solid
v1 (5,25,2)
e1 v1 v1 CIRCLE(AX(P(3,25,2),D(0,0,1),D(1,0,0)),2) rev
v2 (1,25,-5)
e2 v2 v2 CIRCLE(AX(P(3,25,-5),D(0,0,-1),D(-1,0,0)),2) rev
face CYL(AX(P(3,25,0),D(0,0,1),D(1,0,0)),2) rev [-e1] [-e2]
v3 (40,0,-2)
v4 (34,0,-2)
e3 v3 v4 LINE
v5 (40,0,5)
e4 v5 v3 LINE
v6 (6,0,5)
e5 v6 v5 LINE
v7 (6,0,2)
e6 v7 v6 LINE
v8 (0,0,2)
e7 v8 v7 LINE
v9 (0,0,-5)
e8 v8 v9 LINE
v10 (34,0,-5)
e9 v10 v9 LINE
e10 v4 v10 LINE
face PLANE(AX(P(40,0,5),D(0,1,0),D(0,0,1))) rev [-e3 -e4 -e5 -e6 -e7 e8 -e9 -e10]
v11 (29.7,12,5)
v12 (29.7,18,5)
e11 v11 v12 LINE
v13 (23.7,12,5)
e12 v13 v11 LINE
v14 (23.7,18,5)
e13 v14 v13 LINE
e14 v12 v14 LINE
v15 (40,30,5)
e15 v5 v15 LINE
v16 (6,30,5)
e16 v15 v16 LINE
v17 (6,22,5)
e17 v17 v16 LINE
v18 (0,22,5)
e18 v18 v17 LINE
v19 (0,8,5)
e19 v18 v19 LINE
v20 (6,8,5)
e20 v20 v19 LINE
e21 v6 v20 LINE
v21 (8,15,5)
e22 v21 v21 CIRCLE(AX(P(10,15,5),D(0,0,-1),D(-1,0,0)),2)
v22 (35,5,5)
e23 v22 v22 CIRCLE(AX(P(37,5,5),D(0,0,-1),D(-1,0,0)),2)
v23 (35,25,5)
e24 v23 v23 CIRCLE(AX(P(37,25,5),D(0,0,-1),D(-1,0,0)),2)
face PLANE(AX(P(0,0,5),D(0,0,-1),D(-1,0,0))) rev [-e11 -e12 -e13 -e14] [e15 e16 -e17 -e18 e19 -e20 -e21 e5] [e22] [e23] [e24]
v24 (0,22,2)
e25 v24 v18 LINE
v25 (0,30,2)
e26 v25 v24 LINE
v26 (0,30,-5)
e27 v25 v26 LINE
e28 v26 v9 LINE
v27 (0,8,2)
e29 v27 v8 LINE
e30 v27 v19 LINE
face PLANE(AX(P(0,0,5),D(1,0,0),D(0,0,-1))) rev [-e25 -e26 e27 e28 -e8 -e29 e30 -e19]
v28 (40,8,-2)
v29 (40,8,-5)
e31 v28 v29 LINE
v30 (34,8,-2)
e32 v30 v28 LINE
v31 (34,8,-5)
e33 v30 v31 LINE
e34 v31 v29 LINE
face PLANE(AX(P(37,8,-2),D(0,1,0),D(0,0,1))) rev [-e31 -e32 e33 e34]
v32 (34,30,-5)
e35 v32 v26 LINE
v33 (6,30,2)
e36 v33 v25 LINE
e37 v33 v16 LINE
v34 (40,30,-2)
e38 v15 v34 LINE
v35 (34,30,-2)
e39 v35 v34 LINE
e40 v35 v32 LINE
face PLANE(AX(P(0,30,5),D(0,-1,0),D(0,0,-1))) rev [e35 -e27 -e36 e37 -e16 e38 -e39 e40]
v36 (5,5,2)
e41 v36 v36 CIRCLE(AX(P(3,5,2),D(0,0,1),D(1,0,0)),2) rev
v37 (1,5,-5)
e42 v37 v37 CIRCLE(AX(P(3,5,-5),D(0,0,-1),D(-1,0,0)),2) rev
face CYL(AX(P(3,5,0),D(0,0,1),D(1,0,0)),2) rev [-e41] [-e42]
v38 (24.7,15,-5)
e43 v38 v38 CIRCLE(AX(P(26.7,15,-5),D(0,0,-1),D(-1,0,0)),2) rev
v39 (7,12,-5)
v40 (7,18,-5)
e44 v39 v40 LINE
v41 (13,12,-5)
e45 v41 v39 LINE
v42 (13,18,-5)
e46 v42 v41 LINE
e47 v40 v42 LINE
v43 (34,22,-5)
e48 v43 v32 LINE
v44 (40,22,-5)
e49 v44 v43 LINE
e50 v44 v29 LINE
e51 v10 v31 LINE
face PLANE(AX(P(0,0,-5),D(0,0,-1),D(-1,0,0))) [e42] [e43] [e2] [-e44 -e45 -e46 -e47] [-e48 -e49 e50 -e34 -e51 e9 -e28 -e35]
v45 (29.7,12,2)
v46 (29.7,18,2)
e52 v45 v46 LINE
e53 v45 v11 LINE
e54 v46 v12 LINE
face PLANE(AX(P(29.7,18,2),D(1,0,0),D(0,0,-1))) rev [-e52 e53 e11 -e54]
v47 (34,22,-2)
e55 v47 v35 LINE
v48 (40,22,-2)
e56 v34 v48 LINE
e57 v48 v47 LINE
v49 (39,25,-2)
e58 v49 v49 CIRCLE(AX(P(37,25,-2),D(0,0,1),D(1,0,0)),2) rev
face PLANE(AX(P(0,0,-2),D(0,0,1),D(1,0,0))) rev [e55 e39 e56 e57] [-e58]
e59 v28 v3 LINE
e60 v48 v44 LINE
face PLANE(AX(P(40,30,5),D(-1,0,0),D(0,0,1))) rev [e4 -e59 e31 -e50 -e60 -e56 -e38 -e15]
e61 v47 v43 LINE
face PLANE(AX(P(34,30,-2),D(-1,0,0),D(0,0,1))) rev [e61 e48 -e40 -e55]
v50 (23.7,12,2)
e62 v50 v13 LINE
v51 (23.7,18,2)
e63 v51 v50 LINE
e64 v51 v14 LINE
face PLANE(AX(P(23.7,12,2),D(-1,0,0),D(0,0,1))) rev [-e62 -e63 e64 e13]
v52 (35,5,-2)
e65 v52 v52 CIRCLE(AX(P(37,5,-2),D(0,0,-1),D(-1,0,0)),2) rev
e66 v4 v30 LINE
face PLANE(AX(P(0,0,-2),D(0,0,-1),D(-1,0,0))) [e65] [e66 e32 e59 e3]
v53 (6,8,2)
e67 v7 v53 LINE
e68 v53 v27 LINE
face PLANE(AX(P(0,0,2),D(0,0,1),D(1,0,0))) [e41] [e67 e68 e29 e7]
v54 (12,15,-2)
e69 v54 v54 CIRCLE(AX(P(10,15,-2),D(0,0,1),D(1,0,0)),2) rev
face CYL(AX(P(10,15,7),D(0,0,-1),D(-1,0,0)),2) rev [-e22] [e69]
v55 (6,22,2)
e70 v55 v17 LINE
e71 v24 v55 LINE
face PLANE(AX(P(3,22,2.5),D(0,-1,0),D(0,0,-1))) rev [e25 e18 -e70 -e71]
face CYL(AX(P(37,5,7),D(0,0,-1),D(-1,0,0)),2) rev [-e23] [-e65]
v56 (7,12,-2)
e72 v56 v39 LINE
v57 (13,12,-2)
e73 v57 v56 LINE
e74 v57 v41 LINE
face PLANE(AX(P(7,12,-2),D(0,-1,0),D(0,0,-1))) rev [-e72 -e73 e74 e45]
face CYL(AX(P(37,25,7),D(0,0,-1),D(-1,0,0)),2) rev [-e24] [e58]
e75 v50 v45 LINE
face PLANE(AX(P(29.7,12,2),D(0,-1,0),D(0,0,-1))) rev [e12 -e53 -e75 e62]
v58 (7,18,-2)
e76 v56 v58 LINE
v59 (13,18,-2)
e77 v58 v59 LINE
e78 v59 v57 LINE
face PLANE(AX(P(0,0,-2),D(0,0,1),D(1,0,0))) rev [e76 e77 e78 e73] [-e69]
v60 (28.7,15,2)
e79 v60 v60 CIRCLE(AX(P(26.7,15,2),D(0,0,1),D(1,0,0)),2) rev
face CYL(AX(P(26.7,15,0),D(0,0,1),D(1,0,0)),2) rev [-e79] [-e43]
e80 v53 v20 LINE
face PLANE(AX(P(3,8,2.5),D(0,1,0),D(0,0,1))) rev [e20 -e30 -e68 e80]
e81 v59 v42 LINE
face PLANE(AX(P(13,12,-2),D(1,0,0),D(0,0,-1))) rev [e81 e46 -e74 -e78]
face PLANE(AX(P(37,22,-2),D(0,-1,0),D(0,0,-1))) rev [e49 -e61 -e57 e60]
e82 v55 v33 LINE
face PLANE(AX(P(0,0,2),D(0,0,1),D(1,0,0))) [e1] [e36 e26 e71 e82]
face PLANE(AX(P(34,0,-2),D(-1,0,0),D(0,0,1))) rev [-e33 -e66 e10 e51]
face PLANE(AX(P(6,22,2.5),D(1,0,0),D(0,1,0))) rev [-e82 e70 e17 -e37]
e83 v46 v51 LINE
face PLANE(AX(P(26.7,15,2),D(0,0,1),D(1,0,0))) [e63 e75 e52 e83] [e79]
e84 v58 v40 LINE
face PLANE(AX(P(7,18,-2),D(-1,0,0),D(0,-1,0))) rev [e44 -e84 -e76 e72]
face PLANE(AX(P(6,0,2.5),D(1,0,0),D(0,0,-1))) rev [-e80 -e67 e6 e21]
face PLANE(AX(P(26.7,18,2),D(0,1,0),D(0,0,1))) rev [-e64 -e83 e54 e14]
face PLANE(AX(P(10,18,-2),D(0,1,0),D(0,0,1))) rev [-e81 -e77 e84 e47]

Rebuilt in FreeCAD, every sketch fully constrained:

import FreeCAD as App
import Part
import Sketcher

V = App.Vector
Q = App.Units.Quantity


def add_polygon(sketch, points):
    """Adds a closed chain of lines whose ends are joined by coincident constraints."""
    first, n = sketch.GeometryCount, len(points)
    for a, b in zip(points, points[1:] + points[:1]):
        sketch.addGeometry(Part.LineSegment(App.Vector(*a, 0), App.Vector(*b, 0)), False)
    for i in range(n):
        sketch.addConstraint(Sketcher.Constraint("Coincident", first + i, 2, first + (i + 1) % n, 1))

doc = App.newDocument("Part")
body = doc.addObject("PartDesign::Body", "Body")

sketch1 = doc.addObject("Sketcher::SketchObject", "Sketch")
body.addObject(sketch1)
sketch1.AttachmentSupport = (doc.XY_Plane, [""])
sketch1.MapMode = "FlatFace"
add_polygon(sketch1, [(0, 30), (0, 0), (40, 0), (40, 30)])
sketch1.addConstraint(Sketcher.Constraint("Vertical", 0))
sketch1.addConstraint(Sketcher.Constraint("Horizontal", 1))
sketch1.addConstraint(Sketcher.Constraint("Vertical", 2))
sketch1.addConstraint(Sketcher.Constraint("Horizontal", 3))
sketch1.addConstraint(Sketcher.Constraint("Coincident", 0, 2, -1, 1))
sketch1.addConstraint(Sketcher.Constraint("DistanceX", 1, 1, 1, 2, Q("40 mm")))
sketch1.addConstraint(Sketcher.Constraint("DistanceY", 0, 2, 0, 1, Q("30 mm")))
pad1 = doc.addObject("PartDesign::Pad", "Pad")
body.addObject(pad1)
pad1.Profile = sketch1
pad1.Length = 5

sketch2 = doc.addObject("Sketcher::SketchObject", "Sketch001")
body.addObject(sketch2)
sketch2.AttachmentSupport = (doc.XY_Plane, [""])
sketch2.MapMode = "FlatFace"
sketch2.AttachmentOffset = App.Placement(V(0, 0, 5), App.Rotation())
sketch2.addGeometry(Part.Circle(V(3, 25, 0), V(0, 0, 1), 2), False)
sketch2.addGeometry(Part.Circle(V(3, 5, 0), V(0, 0, 1), 2), False)
sketch2.addGeometry(Part.Circle(V(26.7, 15, 0), V(0, 0, 1), 2), False)
sketch2.addConstraint(Sketcher.Constraint("Equal", 0, 1))
sketch2.addConstraint(Sketcher.Constraint("Equal", 1, 2))
sketch2.addConstraint(Sketcher.Constraint("Vertical", 0, 3, 1, 3))
sketch2.addConstraint(Sketcher.Constraint("Diameter", 0, Q("4 mm")))
sketch2.addConstraint(Sketcher.Constraint("DistanceX", -1, 1, 0, 3, Q("3 mm")))
sketch2.addConstraint(Sketcher.Constraint("DistanceY", -1, 1, 0, 3, Q("25 mm")))
sketch2.addConstraint(Sketcher.Constraint("DistanceY", -1, 1, 1, 3, Q("5 mm")))
sketch2.addConstraint(Sketcher.Constraint("DistanceY", -1, 1, 2, 3, Q("15 mm")))
sketch2.addConstraint(Sketcher.Constraint("DistanceX", -1, 1, 2, 3, Q("26.7 mm")))
pocket1 = doc.addObject("PartDesign::Pocket", "Pocket")
body.addObject(pocket1)
pocket1.Profile = sketch2
pocket1.Length = 5

sketch3 = doc.addObject("Sketcher::SketchObject", "Sketch002")
body.addObject(sketch3)
sketch3.AttachmentSupport = (doc.XY_Plane, [""])
sketch3.MapMode = "FlatFace"
sketch3.AttachmentOffset = App.Placement(V(0, 0, 5), App.Rotation())
sketch3.addGeometry(Part.Circle(V(26.7, 15, 0), V(0, 0, 1), 3), False)
add_polygon(sketch3, [(6, 22), (6, 30), (0, 30), (0, 22)])
add_polygon(sketch3, [(0, 8), (0, 0), (6, 0), (6, 8)])
sketch3.addConstraint(Sketcher.Constraint("Vertical", 1))
sketch3.addConstraint(Sketcher.Constraint("Horizontal", 2))
sketch3.addConstraint(Sketcher.Constraint("Vertical", 3))
sketch3.addConstraint(Sketcher.Constraint("Horizontal", 4))
sketch3.addConstraint(Sketcher.Constraint("Vertical", 5))
sketch3.addConstraint(Sketcher.Constraint("Horizontal", 6))
sketch3.addConstraint(Sketcher.Constraint("Vertical", 7))
sketch3.addConstraint(Sketcher.Constraint("Horizontal", 8))
sketch3.addConstraint(Sketcher.Constraint("Coincident", 5, 2, -1, 1))
sketch3.addConstraint(Sketcher.Constraint("PointOnObject", 2, 2, -2))
sketch3.addConstraint(Sketcher.Constraint("Vertical", 4, 2, 6, 2))
sketch3.addConstraint(Sketcher.Constraint("Equal", 3, 5))
sketch3.addConstraint(Sketcher.Constraint("Diameter", 0, Q("6 mm")))
sketch3.addConstraint(Sketcher.Constraint("DistanceX", 2, 2, 2, 1, Q("6 mm")))
sketch3.addConstraint(Sketcher.Constraint("DistanceY", 1, 1, 1, 2, Q("8 mm")))
sketch3.addConstraint(Sketcher.Constraint("DistanceY", -1, 1, 0, 3, Q("15 mm")))
sketch3.addConstraint(Sketcher.Constraint("DistanceY", -1, 1, 1, 2, Q("30 mm")))
sketch3.addConstraint(Sketcher.Constraint("DistanceX", -1, 1, 0, 3, Q("26.7 mm")))
pocket2 = doc.addObject("PartDesign::Pocket", "Pocket001")
body.addObject(pocket2)
pocket2.Profile = sketch3
pocket2.Length = 2.5

sketch4 = doc.addObject("Sketcher::SketchObject", "Sketch003")
body.addObject(sketch4)
sketch4.AttachmentSupport = (doc.XY_Plane, [""])
sketch4.MapMode = "FlatFace"
add_polygon(sketch4, [(40, 30), (40, 0), (0, 0), (0, 30)])
sketch4.addGeometry(Part.Circle(V(3, 5, 0), V(0, 0, 1), 2), False)
sketch4.addGeometry(Part.Circle(V(26.7, 15, 0), V(0, 0, 1), 2), False)
sketch4.addGeometry(Part.Circle(V(3, 25, 0), V(0, 0, 1), 2), False)
sketch4.addConstraint(Sketcher.Constraint("Vertical", 0))
sketch4.addConstraint(Sketcher.Constraint("Horizontal", 1))
sketch4.addConstraint(Sketcher.Constraint("Vertical", 2))
sketch4.addConstraint(Sketcher.Constraint("Horizontal", 3))
sketch4.addConstraint(Sketcher.Constraint("Coincident", 1, 2, -1, 1))
sketch4.addConstraint(Sketcher.Constraint("Equal", 4, 5))
sketch4.addConstraint(Sketcher.Constraint("Equal", 5, 6))
sketch4.addConstraint(Sketcher.Constraint("Vertical", 4, 3, 6, 3))
sketch4.addConstraint(Sketcher.Constraint("Diameter", 4, Q("4 mm")))
sketch4.addConstraint(Sketcher.Constraint("DistanceX", 1, 2, 1, 1, Q("40 mm")))
sketch4.addConstraint(Sketcher.Constraint("DistanceY", 0, 2, 0, 1, Q("30 mm")))
sketch4.addConstraint(Sketcher.Constraint("DistanceX", -1, 1, 4, 3, Q("3 mm")))
sketch4.addConstraint(Sketcher.Constraint("DistanceY", -1, 1, 4, 3, Q("5 mm")))
sketch4.addConstraint(Sketcher.Constraint("DistanceY", -1, 1, 5, 3, Q("15 mm")))
sketch4.addConstraint(Sketcher.Constraint("DistanceY", -1, 1, 6, 3, Q("25 mm")))
sketch4.addConstraint(Sketcher.Constraint("DistanceX", -1, 1, 5, 3, Q("26.7 mm")))
pad2 = doc.addObject("PartDesign::Pad", "Pad001")
body.addObject(pad2)
pad2.Profile = sketch4
pad2.Length = 3
pad2.Reversed = True

sketch5 = doc.addObject("Sketcher::SketchObject", "Sketch004")
body.addObject(sketch5)
sketch5.AttachmentSupport = (doc.XY_Plane, [""])
sketch5.MapMode = "FlatFace"
sketch5.AttachmentOffset = App.Placement(V(0, 0, 5), App.Rotation())
sketch5.addGeometry(Part.Circle(V(26.7, 15, 0), V(0, 0, 1), 3), False)
add_polygon(sketch5, [(6, 22), (6, 30), (0, 30), (0, 22)])
add_polygon(sketch5, [(0, 8), (0, 0), (6, 0), (6, 8)])
sketch5.addConstraint(Sketcher.Constraint("Vertical", 1))
sketch5.addConstraint(Sketcher.Constraint("Horizontal", 2))
sketch5.addConstraint(Sketcher.Constraint("Vertical", 3))
sketch5.addConstraint(Sketcher.Constraint("Horizontal", 4))
sketch5.addConstraint(Sketcher.Constraint("Vertical", 5))
sketch5.addConstraint(Sketcher.Constraint("Horizontal", 6))
sketch5.addConstraint(Sketcher.Constraint("Vertical", 7))
sketch5.addConstraint(Sketcher.Constraint("Horizontal", 8))
sketch5.addConstraint(Sketcher.Constraint("Coincident", 5, 2, -1, 1))
sketch5.addConstraint(Sketcher.Constraint("PointOnObject", 2, 2, -2))
sketch5.addConstraint(Sketcher.Constraint("Vertical", 4, 2, 6, 2))
sketch5.addConstraint(Sketcher.Constraint("Equal", 3, 5))
sketch5.addConstraint(Sketcher.Constraint("Diameter", 0, Q("6 mm")))
sketch5.addConstraint(Sketcher.Constraint("DistanceX", 2, 2, 2, 1, Q("6 mm")))
sketch5.addConstraint(Sketcher.Constraint("DistanceY", 1, 1, 1, 2, Q("8 mm")))
sketch5.addConstraint(Sketcher.Constraint("DistanceY", -1, 1, 0, 3, Q("15 mm")))
sketch5.addConstraint(Sketcher.Constraint("DistanceY", -1, 1, 1, 2, Q("30 mm")))
sketch5.addConstraint(Sketcher.Constraint("DistanceX", -1, 1, 0, 3, Q("26.7 mm")))
pocket3 = doc.addObject("PartDesign::Pocket", "Pocket002")
body.addObject(pocket3)
pocket3.Profile = sketch5
pocket3.Length = 3

sketch6 = doc.addObject("Sketcher::SketchObject", "Sketch005")
body.addObject(sketch6)
sketch6.AttachmentSupport = (doc.XY_Plane, [""])
sketch6.MapMode = "FlatFace"
sketch6.AttachmentOffset = App.Placement(V(0, 0, -3), App.Rotation())
add_polygon(sketch6, [(40, 30), (40, 0), (0, 0), (0, 30)])
sketch6.addGeometry(Part.Circle(V(3, 5, 0), V(0, 0, 1), 2), False)
sketch6.addGeometry(Part.Circle(V(26.7, 15, 0), V(0, 0, 1), 2), False)
sketch6.addGeometry(Part.Circle(V(3, 25, 0), V(0, 0, 1), 2), False)
sketch6.addConstraint(Sketcher.Constraint("Vertical", 0))
sketch6.addConstraint(Sketcher.Constraint("Horizontal", 1))
sketch6.addConstraint(Sketcher.Constraint("Vertical", 2))
sketch6.addConstraint(Sketcher.Constraint("Horizontal", 3))
sketch6.addConstraint(Sketcher.Constraint("Coincident", 1, 2, -1, 1))
sketch6.addConstraint(Sketcher.Constraint("Equal", 4, 5))
sketch6.addConstraint(Sketcher.Constraint("Equal", 5, 6))
sketch6.addConstraint(Sketcher.Constraint("Vertical", 4, 3, 6, 3))
sketch6.addConstraint(Sketcher.Constraint("Diameter", 4, Q("4 mm")))
sketch6.addConstraint(Sketcher.Constraint("DistanceX", 1, 2, 1, 1, Q("40 mm")))
sketch6.addConstraint(Sketcher.Constraint("DistanceY", 0, 2, 0, 1, Q("30 mm")))
sketch6.addConstraint(Sketcher.Constraint("DistanceX", -1, 1, 4, 3, Q("3 mm")))
sketch6.addConstraint(Sketcher.Constraint("DistanceY", -1, 1, 4, 3, Q("5 mm")))
sketch6.addConstraint(Sketcher.Constraint("DistanceY", -1, 1, 5, 3, Q("15 mm")))
sketch6.addConstraint(Sketcher.Constraint("DistanceY", -1, 1, 6, 3, Q("25 mm")))
sketch6.addConstraint(Sketcher.Constraint("DistanceX", -1, 1, 5, 3, Q("26.7 mm")))
pad3 = doc.addObject("PartDesign::Pad", "Pad002")
body.addObject(pad3)
pad3.Profile = sketch6
pad3.Length = 2
pad3.Reversed = True

sketch7 = doc.addObject("Sketcher::SketchObject", "Sketch006")
body.addObject(sketch7)
sketch7.AttachmentSupport = (doc.XY_Plane, [""])
sketch7.MapMode = "FlatFace"
sketch7.AttachmentOffset = App.Placement(V(0, 0, -3), App.Rotation())
sketch7.addGeometry(Part.Circle(V(37, 25, 0), V(0, 0, 1), 2), False)
sketch7.addGeometry(Part.Circle(V(37, 5, 0), V(0, 0, 1), 2), False)
sketch7.addGeometry(Part.Circle(V(10, 15, 0), V(0, 0, 1), 2), False)
sketch7.addConstraint(Sketcher.Constraint("Equal", 0, 1))
sketch7.addConstraint(Sketcher.Constraint("Equal", 1, 2))
sketch7.addConstraint(Sketcher.Constraint("Vertical", 0, 3, 1, 3))
sketch7.addConstraint(Sketcher.Constraint("Diameter", 0, Q("4 mm")))
sketch7.addConstraint(Sketcher.Constraint("DistanceX", -1, 1, 0, 3, Q("37 mm")))
sketch7.addConstraint(Sketcher.Constraint("DistanceY", -1, 1, 0, 3, Q("25 mm")))
sketch7.addConstraint(Sketcher.Constraint("DistanceY", -1, 1, 1, 3, Q("5 mm")))
sketch7.addConstraint(Sketcher.Constraint("DistanceX", -1, 1, 2, 3, Q("10 mm")))
sketch7.addConstraint(Sketcher.Constraint("DistanceY", -1, 1, 2, 3, Q("15 mm")))
pocket4 = doc.addObject("PartDesign::Pocket", "Pocket003")
body.addObject(pocket4)
pocket4.Profile = sketch7
pocket4.Length = 10
pocket4.Reversed = True

sketch8 = doc.addObject("Sketcher::SketchObject", "Sketch007")
body.addObject(sketch8)
sketch8.AttachmentSupport = (doc.XY_Plane, [""])
sketch8.MapMode = "FlatFace"
sketch8.AttachmentOffset = App.Placement(V(0, 0, -13), App.Rotation())
sketch8.addGeometry(Part.Circle(V(37, 25, 0), V(0, 0, 1), 2), False)
sketch8.addGeometry(Part.Circle(V(37, 5, 0), V(0, 0, 1), 2), False)
sketch8.addGeometry(Part.Circle(V(10, 15, 0), V(0, 0, 1), 2), False)
sketch8.addConstraint(Sketcher.Constraint("Equal", 0, 1))
sketch8.addConstraint(Sketcher.Constraint("Equal", 1, 2))
sketch8.addConstraint(Sketcher.Constraint("Vertical", 0, 3, 1, 3))
sketch8.addConstraint(Sketcher.Constraint("Diameter", 0, Q("4 mm")))
sketch8.addConstraint(Sketcher.Constraint("DistanceX", -1, 1, 0, 3, Q("37 mm")))
sketch8.addConstraint(Sketcher.Constraint("DistanceY", -1, 1, 0, 3, Q("25 mm")))
sketch8.addConstraint(Sketcher.Constraint("DistanceY", -1, 1, 1, 3, Q("5 mm")))
sketch8.addConstraint(Sketcher.Constraint("DistanceX", -1, 1, 2, 3, Q("10 mm")))
sketch8.addConstraint(Sketcher.Constraint("DistanceY", -1, 1, 2, 3, Q("15 mm")))
pocket5 = doc.addObject("PartDesign::Pocket", "Pocket004")
body.addObject(pocket5)
pocket5.Profile = sketch8
pocket5.Length = 10
pocket5.Reversed = True

sketch9 = doc.addObject("Sketcher::SketchObject", "Sketch008")
body.addObject(sketch9)
sketch9.AttachmentSupport = (doc.XY_Plane, [""])
sketch9.MapMode = "FlatFace"
sketch9.AttachmentOffset = App.Placement(V(0, 0, -5), App.Rotation())
add_polygon(sketch9, [(40, 22), (34, 22), (34, 30), (40, 30)])
add_polygon(sketch9, [(40, 8), (40, 0), (34, 0), (34, 8)])
add_polygon(sketch9, [(7, 18), (13, 18), (13, 12), (7, 12)])
sketch9.addConstraint(Sketcher.Constraint("Horizontal", 0))
sketch9.addConstraint(Sketcher.Constraint("Vertical", 1))
sketch9.addConstraint(Sketcher.Constraint("Horizontal", 2))
sketch9.addConstraint(Sketcher.Constraint("Vertical", 3))
sketch9.addConstraint(Sketcher.Constraint("Vertical", 4))
sketch9.addConstraint(Sketcher.Constraint("Horizontal", 5))
sketch9.addConstraint(Sketcher.Constraint("Vertical", 6))
sketch9.addConstraint(Sketcher.Constraint("Horizontal", 7))
sketch9.addConstraint(Sketcher.Constraint("Horizontal", 8))
sketch9.addConstraint(Sketcher.Constraint("Vertical", 9))
sketch9.addConstraint(Sketcher.Constraint("Horizontal", 10))
sketch9.addConstraint(Sketcher.Constraint("Vertical", 11))
sketch9.addConstraint(Sketcher.Constraint("PointOnObject", 4, 2, -1))
sketch9.addConstraint(Sketcher.Constraint("Vertical", 3, 2, 4, 2))
sketch9.addConstraint(Sketcher.Constraint("Vertical", 1, 2, 5, 2))
sketch9.addConstraint(Sketcher.Constraint("Equal", 7, 8))
sketch9.addConstraint(Sketcher.Constraint("Equal", 3, 4))
sketch9.addConstraint(Sketcher.Constraint("Equal", 10, 9))
sketch9.addConstraint(Sketcher.Constraint("DistanceX", 0, 2, 0, 1, Q("6 mm")))
sketch9.addConstraint(Sketcher.Constraint("DistanceY", 1, 1, 1, 2, Q("8 mm")))
sketch9.addConstraint(Sketcher.Constraint("DistanceX", -1, 1, 0, 2, Q("34 mm")))
sketch9.addConstraint(Sketcher.Constraint("DistanceY", -1, 1, 0, 2, Q("22 mm")))
sketch9.addConstraint(Sketcher.Constraint("DistanceX", -1, 1, 8, 2, Q("13 mm")))
sketch9.addConstraint(Sketcher.Constraint("DistanceY", -1, 1, 8, 2, Q("18 mm")))
pocket6 = doc.addObject("PartDesign::Pocket", "Pocket005")
body.addObject(pocket6)
pocket6.Profile = sketch9
pocket6.Length = 3
pocket6.Reversed = True

sketch10 = doc.addObject("Sketcher::SketchObject", "Sketch009")
body.addObject(sketch10)
sketch10.AttachmentSupport = (doc.XY_Plane, [""])
sketch10.MapMode = "FlatFace"
sketch10.AttachmentOffset = App.Placement(V(0, 0, 5), App.Rotation())
add_polygon(sketch10, [(30, 18), (24, 18), (24, 12), (30, 12)])
sketch10.addConstraint(Sketcher.Constraint("Horizontal", 0))
sketch10.addConstraint(Sketcher.Constraint("Vertical", 1))
sketch10.addConstraint(Sketcher.Constraint("Horizontal", 2))
sketch10.addConstraint(Sketcher.Constraint("Vertical", 3))
sketch10.addConstraint(Sketcher.Constraint("Equal", 2, 1))
sketch10.addConstraint(Sketcher.Constraint("DistanceX", 0, 2, 0, 1, Q("6 mm")))
sketch10.addConstraint(Sketcher.Constraint("DistanceY", -1, 1, 0, 2, Q("18 mm")))
sketch10.addConstraint(Sketcher.Constraint("DistanceX", -1, 1, 0, 2, Q("23.7 mm")))
pocket7 = doc.addObject("PartDesign::Pocket", "Pocket006")
body.addObject(pocket7)
pocket7.Profile = sketch10
pocket7.Length = 3

doc.recompute()
